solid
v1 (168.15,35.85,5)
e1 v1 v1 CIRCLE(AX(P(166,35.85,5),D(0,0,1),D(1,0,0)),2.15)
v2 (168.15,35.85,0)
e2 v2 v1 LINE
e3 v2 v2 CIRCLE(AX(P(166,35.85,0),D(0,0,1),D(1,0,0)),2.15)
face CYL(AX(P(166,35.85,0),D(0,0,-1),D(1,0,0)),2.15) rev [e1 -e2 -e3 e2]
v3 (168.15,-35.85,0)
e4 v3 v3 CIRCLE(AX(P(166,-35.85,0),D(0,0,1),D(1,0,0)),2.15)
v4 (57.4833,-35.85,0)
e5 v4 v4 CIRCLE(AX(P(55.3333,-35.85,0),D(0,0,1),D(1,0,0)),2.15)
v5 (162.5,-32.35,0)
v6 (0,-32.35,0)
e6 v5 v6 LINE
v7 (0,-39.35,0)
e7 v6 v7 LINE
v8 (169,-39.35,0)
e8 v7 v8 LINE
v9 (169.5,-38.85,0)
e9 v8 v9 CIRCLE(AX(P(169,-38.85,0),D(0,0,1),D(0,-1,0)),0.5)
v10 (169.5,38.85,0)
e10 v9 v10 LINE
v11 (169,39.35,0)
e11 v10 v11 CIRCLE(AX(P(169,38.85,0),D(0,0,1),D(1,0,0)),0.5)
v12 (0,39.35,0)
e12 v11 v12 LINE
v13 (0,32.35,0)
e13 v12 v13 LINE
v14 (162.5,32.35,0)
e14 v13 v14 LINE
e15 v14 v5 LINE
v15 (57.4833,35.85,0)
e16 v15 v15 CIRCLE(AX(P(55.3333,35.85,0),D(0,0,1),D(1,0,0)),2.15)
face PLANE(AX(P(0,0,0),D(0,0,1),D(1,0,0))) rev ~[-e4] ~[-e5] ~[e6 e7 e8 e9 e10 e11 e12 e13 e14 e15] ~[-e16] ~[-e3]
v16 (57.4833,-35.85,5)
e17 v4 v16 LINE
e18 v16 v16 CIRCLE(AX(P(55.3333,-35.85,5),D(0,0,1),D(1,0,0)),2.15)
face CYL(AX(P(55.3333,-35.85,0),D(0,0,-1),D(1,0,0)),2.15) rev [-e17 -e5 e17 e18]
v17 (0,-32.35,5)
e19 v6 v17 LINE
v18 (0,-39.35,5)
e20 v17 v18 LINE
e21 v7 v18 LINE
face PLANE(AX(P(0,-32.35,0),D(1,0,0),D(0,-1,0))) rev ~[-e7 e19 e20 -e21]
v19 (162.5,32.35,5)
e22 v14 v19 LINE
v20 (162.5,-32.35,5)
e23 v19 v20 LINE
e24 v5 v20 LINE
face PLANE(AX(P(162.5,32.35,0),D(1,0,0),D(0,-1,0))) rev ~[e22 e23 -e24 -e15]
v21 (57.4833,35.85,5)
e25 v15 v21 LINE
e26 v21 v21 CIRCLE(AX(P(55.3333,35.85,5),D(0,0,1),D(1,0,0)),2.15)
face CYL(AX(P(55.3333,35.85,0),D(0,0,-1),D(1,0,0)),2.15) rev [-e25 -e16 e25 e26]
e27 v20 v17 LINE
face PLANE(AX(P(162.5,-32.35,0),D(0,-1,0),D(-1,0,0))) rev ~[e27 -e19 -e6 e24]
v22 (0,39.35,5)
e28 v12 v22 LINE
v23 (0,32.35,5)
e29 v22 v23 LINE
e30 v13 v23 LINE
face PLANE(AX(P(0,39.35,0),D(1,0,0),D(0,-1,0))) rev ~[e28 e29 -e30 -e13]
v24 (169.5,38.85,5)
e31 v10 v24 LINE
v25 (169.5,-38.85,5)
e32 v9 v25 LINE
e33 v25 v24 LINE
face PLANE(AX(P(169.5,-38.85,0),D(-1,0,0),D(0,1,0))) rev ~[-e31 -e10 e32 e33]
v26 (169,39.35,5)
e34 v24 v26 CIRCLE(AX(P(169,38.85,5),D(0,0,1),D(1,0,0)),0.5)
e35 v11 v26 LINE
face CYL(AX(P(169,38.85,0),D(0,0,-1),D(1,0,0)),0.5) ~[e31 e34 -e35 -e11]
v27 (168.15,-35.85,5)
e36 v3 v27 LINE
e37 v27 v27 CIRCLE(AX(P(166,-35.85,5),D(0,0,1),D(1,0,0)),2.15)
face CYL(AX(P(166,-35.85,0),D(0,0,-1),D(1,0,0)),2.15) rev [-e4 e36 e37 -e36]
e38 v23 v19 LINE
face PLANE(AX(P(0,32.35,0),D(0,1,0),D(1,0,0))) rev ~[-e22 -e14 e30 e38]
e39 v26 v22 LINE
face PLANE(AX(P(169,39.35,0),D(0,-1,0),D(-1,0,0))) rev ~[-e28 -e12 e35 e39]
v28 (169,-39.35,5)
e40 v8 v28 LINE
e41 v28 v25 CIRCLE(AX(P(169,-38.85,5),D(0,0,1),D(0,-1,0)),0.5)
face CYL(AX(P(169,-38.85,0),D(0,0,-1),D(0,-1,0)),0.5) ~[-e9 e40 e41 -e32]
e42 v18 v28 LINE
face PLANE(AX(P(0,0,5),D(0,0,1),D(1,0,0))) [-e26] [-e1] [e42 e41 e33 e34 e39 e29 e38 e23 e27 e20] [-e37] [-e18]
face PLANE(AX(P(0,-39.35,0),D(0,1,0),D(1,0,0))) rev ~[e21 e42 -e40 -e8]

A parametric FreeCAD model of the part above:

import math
import FreeCAD as App
import Part
import Sketcher
Q = App.Units.Quantity

doc = App.newDocument("Part")
body = doc.addObject("PartDesign::Body", "Body")

# Sketch on XY plane
sketch1 = body.newObject("Sketcher::SketchObject", "Sketch")
sketch1.AttachmentSupport = (doc.getObject("XY_Plane"), [""])
sketch1.MapMode = "FlatFace"
sketch1.addGeometry([
    Part.LineSegment(App.Vector(162.5, -32.35, 0), App.Vector(0, -32.35, 0)),  # 0
    Part.LineSegment(App.Vector(0, -32.35, 0), App.Vector(0, -39.35, 0)),  # 1
    Part.LineSegment(App.Vector(0, -39.35, 0), App.Vector(169, -39.35, 0)),  # 2
    Part.ArcOfCircle(Part.Circle(App.Vector(169, -38.85, 0), App.Vector(0, 0, 1), 0.5), math.radians(-90), math.radians(0)),  # 3
    Part.LineSegment(App.Vector(169.5, -38.85, 0), App.Vector(169.5, 38.85, 0)),  # 4
    Part.ArcOfCircle(Part.Circle(App.Vector(169, 38.85, 0), App.Vector(0, 0, 1), 0.5), math.radians(0), math.radians(90)),  # 5
    Part.LineSegment(App.Vector(169, 39.35, 0), App.Vector(0, 39.35, 0)),  # 6
    Part.LineSegment(App.Vector(0, 39.35, 0), App.Vector(0, 32.35, 0)),  # 7
    Part.LineSegment(App.Vector(0, 32.35, 0), App.Vector(162.5, 32.35, 0)),  # 8
    Part.LineSegment(App.Vector(162.5, 32.35, 0), App.Vector(162.5, -32.35, 0)),  # 9
    Part.Circle(App.Vector(55.3333, -35.85, 0), App.Vector(0, 0, 1), 2.15),  # 10
    Part.Circle(App.Vector(166, -35.85, 0), App.Vector(0, 0, 1), 2.15),  # 11
    Part.Circle(App.Vector(55.3333, 35.85, 0), App.Vector(0, 0, 1), 2.15),  # 12
    Part.Circle(App.Vector(166, 35.85, 0), App.Vector(0, 0, 1), 2.15),  # 13
], False)
sketch1.addConstraint([
    Sketcher.Constraint("Coincident", 0, 2, 1, 1),
    Sketcher.Constraint("Coincident", 1, 2, 2, 1),
    Sketcher.Constraint("Tangent", 2, 2, 3, 1),
    Sketcher.Constraint("Tangent", 3, 2, 4, 1),
    Sketcher.Constraint("Tangent", 4, 2, 5, 1),
    Sketcher.Constraint("Tangent", 5, 2, 6, 1),
    Sketcher.Constraint("Coincident", 6, 2, 7, 1),
    Sketcher.Constraint("Coincident", 7, 2, 8, 1),
    Sketcher.Constraint("Coincident", 8, 2, 9, 1),
    Sketcher.Constraint("Coincident", 9, 2, 0, 1),
    Sketcher.Constraint("Horizontal", 0),
    Sketcher.Constraint("Vertical", 1),
    Sketcher.Constraint("Horizontal", 2),
    Sketcher.Constraint("Vertical", 4),
    Sketcher.Constraint("Horizontal", 6),
    Sketcher.Constraint("Vertical", 7),
    Sketcher.Constraint("Horizontal", 8),
    Sketcher.Constraint("Vertical", 9),
    Sketcher.Constraint("Equal", 3, 5),
    Sketcher.Constraint("Equal", 10, 11),
    Sketcher.Constraint("Equal", 11, 12),
    Sketcher.Constraint("Equal", 12, 13),
    Sketcher.Constraint("Symmetric", 1, 2, 6, 2, -1, 1),
    Sketcher.Constraint("Symmetric", 10, 3, 12, 3, -1),
    Sketcher.Constraint("Symmetric", 11, 3, 13, 3, -1),
    Sketcher.Constraint("Symmetric", 0, 2, 7, 2, -1),
    Sketcher.Constraint("Horizontal", 10, 3, 11, 3),
    Sketcher.Constraint("Diameter", 10, Q("4.3 mm")),
    Sketcher.Constraint("Radius", 3, Q("0.5 mm")),
    Sketcher.Constraint("DistanceX", 2, 1, 2, 2, Q("169 mm")),
    Sketcher.Constraint("DistanceY", 1, 2, 1, 1, Q("7 mm")),
    Sketcher.Constraint("DistanceX", 0, 2, 0, 1, Q("162.5 mm")),
    Sketcher.Constraint("DistanceY", 4, 1, 4, 2, Q("77.7 mm")),
    Sketcher.Constraint("DistanceX", -1, 1, 11, 3, Q("166 mm")),
    Sketcher.Constraint("DistanceY", 3, 3, 10, 3, Q("3 mm")),
    Sketcher.Constraint("DistanceX", -1, 1, 10, 3, Q("55.3333 mm")),
])
pad1 = body.newObject("PartDesign::Pad", "Pad")
pad1.Profile = sketch1
pad1.Length = 5

doc.recompute()
